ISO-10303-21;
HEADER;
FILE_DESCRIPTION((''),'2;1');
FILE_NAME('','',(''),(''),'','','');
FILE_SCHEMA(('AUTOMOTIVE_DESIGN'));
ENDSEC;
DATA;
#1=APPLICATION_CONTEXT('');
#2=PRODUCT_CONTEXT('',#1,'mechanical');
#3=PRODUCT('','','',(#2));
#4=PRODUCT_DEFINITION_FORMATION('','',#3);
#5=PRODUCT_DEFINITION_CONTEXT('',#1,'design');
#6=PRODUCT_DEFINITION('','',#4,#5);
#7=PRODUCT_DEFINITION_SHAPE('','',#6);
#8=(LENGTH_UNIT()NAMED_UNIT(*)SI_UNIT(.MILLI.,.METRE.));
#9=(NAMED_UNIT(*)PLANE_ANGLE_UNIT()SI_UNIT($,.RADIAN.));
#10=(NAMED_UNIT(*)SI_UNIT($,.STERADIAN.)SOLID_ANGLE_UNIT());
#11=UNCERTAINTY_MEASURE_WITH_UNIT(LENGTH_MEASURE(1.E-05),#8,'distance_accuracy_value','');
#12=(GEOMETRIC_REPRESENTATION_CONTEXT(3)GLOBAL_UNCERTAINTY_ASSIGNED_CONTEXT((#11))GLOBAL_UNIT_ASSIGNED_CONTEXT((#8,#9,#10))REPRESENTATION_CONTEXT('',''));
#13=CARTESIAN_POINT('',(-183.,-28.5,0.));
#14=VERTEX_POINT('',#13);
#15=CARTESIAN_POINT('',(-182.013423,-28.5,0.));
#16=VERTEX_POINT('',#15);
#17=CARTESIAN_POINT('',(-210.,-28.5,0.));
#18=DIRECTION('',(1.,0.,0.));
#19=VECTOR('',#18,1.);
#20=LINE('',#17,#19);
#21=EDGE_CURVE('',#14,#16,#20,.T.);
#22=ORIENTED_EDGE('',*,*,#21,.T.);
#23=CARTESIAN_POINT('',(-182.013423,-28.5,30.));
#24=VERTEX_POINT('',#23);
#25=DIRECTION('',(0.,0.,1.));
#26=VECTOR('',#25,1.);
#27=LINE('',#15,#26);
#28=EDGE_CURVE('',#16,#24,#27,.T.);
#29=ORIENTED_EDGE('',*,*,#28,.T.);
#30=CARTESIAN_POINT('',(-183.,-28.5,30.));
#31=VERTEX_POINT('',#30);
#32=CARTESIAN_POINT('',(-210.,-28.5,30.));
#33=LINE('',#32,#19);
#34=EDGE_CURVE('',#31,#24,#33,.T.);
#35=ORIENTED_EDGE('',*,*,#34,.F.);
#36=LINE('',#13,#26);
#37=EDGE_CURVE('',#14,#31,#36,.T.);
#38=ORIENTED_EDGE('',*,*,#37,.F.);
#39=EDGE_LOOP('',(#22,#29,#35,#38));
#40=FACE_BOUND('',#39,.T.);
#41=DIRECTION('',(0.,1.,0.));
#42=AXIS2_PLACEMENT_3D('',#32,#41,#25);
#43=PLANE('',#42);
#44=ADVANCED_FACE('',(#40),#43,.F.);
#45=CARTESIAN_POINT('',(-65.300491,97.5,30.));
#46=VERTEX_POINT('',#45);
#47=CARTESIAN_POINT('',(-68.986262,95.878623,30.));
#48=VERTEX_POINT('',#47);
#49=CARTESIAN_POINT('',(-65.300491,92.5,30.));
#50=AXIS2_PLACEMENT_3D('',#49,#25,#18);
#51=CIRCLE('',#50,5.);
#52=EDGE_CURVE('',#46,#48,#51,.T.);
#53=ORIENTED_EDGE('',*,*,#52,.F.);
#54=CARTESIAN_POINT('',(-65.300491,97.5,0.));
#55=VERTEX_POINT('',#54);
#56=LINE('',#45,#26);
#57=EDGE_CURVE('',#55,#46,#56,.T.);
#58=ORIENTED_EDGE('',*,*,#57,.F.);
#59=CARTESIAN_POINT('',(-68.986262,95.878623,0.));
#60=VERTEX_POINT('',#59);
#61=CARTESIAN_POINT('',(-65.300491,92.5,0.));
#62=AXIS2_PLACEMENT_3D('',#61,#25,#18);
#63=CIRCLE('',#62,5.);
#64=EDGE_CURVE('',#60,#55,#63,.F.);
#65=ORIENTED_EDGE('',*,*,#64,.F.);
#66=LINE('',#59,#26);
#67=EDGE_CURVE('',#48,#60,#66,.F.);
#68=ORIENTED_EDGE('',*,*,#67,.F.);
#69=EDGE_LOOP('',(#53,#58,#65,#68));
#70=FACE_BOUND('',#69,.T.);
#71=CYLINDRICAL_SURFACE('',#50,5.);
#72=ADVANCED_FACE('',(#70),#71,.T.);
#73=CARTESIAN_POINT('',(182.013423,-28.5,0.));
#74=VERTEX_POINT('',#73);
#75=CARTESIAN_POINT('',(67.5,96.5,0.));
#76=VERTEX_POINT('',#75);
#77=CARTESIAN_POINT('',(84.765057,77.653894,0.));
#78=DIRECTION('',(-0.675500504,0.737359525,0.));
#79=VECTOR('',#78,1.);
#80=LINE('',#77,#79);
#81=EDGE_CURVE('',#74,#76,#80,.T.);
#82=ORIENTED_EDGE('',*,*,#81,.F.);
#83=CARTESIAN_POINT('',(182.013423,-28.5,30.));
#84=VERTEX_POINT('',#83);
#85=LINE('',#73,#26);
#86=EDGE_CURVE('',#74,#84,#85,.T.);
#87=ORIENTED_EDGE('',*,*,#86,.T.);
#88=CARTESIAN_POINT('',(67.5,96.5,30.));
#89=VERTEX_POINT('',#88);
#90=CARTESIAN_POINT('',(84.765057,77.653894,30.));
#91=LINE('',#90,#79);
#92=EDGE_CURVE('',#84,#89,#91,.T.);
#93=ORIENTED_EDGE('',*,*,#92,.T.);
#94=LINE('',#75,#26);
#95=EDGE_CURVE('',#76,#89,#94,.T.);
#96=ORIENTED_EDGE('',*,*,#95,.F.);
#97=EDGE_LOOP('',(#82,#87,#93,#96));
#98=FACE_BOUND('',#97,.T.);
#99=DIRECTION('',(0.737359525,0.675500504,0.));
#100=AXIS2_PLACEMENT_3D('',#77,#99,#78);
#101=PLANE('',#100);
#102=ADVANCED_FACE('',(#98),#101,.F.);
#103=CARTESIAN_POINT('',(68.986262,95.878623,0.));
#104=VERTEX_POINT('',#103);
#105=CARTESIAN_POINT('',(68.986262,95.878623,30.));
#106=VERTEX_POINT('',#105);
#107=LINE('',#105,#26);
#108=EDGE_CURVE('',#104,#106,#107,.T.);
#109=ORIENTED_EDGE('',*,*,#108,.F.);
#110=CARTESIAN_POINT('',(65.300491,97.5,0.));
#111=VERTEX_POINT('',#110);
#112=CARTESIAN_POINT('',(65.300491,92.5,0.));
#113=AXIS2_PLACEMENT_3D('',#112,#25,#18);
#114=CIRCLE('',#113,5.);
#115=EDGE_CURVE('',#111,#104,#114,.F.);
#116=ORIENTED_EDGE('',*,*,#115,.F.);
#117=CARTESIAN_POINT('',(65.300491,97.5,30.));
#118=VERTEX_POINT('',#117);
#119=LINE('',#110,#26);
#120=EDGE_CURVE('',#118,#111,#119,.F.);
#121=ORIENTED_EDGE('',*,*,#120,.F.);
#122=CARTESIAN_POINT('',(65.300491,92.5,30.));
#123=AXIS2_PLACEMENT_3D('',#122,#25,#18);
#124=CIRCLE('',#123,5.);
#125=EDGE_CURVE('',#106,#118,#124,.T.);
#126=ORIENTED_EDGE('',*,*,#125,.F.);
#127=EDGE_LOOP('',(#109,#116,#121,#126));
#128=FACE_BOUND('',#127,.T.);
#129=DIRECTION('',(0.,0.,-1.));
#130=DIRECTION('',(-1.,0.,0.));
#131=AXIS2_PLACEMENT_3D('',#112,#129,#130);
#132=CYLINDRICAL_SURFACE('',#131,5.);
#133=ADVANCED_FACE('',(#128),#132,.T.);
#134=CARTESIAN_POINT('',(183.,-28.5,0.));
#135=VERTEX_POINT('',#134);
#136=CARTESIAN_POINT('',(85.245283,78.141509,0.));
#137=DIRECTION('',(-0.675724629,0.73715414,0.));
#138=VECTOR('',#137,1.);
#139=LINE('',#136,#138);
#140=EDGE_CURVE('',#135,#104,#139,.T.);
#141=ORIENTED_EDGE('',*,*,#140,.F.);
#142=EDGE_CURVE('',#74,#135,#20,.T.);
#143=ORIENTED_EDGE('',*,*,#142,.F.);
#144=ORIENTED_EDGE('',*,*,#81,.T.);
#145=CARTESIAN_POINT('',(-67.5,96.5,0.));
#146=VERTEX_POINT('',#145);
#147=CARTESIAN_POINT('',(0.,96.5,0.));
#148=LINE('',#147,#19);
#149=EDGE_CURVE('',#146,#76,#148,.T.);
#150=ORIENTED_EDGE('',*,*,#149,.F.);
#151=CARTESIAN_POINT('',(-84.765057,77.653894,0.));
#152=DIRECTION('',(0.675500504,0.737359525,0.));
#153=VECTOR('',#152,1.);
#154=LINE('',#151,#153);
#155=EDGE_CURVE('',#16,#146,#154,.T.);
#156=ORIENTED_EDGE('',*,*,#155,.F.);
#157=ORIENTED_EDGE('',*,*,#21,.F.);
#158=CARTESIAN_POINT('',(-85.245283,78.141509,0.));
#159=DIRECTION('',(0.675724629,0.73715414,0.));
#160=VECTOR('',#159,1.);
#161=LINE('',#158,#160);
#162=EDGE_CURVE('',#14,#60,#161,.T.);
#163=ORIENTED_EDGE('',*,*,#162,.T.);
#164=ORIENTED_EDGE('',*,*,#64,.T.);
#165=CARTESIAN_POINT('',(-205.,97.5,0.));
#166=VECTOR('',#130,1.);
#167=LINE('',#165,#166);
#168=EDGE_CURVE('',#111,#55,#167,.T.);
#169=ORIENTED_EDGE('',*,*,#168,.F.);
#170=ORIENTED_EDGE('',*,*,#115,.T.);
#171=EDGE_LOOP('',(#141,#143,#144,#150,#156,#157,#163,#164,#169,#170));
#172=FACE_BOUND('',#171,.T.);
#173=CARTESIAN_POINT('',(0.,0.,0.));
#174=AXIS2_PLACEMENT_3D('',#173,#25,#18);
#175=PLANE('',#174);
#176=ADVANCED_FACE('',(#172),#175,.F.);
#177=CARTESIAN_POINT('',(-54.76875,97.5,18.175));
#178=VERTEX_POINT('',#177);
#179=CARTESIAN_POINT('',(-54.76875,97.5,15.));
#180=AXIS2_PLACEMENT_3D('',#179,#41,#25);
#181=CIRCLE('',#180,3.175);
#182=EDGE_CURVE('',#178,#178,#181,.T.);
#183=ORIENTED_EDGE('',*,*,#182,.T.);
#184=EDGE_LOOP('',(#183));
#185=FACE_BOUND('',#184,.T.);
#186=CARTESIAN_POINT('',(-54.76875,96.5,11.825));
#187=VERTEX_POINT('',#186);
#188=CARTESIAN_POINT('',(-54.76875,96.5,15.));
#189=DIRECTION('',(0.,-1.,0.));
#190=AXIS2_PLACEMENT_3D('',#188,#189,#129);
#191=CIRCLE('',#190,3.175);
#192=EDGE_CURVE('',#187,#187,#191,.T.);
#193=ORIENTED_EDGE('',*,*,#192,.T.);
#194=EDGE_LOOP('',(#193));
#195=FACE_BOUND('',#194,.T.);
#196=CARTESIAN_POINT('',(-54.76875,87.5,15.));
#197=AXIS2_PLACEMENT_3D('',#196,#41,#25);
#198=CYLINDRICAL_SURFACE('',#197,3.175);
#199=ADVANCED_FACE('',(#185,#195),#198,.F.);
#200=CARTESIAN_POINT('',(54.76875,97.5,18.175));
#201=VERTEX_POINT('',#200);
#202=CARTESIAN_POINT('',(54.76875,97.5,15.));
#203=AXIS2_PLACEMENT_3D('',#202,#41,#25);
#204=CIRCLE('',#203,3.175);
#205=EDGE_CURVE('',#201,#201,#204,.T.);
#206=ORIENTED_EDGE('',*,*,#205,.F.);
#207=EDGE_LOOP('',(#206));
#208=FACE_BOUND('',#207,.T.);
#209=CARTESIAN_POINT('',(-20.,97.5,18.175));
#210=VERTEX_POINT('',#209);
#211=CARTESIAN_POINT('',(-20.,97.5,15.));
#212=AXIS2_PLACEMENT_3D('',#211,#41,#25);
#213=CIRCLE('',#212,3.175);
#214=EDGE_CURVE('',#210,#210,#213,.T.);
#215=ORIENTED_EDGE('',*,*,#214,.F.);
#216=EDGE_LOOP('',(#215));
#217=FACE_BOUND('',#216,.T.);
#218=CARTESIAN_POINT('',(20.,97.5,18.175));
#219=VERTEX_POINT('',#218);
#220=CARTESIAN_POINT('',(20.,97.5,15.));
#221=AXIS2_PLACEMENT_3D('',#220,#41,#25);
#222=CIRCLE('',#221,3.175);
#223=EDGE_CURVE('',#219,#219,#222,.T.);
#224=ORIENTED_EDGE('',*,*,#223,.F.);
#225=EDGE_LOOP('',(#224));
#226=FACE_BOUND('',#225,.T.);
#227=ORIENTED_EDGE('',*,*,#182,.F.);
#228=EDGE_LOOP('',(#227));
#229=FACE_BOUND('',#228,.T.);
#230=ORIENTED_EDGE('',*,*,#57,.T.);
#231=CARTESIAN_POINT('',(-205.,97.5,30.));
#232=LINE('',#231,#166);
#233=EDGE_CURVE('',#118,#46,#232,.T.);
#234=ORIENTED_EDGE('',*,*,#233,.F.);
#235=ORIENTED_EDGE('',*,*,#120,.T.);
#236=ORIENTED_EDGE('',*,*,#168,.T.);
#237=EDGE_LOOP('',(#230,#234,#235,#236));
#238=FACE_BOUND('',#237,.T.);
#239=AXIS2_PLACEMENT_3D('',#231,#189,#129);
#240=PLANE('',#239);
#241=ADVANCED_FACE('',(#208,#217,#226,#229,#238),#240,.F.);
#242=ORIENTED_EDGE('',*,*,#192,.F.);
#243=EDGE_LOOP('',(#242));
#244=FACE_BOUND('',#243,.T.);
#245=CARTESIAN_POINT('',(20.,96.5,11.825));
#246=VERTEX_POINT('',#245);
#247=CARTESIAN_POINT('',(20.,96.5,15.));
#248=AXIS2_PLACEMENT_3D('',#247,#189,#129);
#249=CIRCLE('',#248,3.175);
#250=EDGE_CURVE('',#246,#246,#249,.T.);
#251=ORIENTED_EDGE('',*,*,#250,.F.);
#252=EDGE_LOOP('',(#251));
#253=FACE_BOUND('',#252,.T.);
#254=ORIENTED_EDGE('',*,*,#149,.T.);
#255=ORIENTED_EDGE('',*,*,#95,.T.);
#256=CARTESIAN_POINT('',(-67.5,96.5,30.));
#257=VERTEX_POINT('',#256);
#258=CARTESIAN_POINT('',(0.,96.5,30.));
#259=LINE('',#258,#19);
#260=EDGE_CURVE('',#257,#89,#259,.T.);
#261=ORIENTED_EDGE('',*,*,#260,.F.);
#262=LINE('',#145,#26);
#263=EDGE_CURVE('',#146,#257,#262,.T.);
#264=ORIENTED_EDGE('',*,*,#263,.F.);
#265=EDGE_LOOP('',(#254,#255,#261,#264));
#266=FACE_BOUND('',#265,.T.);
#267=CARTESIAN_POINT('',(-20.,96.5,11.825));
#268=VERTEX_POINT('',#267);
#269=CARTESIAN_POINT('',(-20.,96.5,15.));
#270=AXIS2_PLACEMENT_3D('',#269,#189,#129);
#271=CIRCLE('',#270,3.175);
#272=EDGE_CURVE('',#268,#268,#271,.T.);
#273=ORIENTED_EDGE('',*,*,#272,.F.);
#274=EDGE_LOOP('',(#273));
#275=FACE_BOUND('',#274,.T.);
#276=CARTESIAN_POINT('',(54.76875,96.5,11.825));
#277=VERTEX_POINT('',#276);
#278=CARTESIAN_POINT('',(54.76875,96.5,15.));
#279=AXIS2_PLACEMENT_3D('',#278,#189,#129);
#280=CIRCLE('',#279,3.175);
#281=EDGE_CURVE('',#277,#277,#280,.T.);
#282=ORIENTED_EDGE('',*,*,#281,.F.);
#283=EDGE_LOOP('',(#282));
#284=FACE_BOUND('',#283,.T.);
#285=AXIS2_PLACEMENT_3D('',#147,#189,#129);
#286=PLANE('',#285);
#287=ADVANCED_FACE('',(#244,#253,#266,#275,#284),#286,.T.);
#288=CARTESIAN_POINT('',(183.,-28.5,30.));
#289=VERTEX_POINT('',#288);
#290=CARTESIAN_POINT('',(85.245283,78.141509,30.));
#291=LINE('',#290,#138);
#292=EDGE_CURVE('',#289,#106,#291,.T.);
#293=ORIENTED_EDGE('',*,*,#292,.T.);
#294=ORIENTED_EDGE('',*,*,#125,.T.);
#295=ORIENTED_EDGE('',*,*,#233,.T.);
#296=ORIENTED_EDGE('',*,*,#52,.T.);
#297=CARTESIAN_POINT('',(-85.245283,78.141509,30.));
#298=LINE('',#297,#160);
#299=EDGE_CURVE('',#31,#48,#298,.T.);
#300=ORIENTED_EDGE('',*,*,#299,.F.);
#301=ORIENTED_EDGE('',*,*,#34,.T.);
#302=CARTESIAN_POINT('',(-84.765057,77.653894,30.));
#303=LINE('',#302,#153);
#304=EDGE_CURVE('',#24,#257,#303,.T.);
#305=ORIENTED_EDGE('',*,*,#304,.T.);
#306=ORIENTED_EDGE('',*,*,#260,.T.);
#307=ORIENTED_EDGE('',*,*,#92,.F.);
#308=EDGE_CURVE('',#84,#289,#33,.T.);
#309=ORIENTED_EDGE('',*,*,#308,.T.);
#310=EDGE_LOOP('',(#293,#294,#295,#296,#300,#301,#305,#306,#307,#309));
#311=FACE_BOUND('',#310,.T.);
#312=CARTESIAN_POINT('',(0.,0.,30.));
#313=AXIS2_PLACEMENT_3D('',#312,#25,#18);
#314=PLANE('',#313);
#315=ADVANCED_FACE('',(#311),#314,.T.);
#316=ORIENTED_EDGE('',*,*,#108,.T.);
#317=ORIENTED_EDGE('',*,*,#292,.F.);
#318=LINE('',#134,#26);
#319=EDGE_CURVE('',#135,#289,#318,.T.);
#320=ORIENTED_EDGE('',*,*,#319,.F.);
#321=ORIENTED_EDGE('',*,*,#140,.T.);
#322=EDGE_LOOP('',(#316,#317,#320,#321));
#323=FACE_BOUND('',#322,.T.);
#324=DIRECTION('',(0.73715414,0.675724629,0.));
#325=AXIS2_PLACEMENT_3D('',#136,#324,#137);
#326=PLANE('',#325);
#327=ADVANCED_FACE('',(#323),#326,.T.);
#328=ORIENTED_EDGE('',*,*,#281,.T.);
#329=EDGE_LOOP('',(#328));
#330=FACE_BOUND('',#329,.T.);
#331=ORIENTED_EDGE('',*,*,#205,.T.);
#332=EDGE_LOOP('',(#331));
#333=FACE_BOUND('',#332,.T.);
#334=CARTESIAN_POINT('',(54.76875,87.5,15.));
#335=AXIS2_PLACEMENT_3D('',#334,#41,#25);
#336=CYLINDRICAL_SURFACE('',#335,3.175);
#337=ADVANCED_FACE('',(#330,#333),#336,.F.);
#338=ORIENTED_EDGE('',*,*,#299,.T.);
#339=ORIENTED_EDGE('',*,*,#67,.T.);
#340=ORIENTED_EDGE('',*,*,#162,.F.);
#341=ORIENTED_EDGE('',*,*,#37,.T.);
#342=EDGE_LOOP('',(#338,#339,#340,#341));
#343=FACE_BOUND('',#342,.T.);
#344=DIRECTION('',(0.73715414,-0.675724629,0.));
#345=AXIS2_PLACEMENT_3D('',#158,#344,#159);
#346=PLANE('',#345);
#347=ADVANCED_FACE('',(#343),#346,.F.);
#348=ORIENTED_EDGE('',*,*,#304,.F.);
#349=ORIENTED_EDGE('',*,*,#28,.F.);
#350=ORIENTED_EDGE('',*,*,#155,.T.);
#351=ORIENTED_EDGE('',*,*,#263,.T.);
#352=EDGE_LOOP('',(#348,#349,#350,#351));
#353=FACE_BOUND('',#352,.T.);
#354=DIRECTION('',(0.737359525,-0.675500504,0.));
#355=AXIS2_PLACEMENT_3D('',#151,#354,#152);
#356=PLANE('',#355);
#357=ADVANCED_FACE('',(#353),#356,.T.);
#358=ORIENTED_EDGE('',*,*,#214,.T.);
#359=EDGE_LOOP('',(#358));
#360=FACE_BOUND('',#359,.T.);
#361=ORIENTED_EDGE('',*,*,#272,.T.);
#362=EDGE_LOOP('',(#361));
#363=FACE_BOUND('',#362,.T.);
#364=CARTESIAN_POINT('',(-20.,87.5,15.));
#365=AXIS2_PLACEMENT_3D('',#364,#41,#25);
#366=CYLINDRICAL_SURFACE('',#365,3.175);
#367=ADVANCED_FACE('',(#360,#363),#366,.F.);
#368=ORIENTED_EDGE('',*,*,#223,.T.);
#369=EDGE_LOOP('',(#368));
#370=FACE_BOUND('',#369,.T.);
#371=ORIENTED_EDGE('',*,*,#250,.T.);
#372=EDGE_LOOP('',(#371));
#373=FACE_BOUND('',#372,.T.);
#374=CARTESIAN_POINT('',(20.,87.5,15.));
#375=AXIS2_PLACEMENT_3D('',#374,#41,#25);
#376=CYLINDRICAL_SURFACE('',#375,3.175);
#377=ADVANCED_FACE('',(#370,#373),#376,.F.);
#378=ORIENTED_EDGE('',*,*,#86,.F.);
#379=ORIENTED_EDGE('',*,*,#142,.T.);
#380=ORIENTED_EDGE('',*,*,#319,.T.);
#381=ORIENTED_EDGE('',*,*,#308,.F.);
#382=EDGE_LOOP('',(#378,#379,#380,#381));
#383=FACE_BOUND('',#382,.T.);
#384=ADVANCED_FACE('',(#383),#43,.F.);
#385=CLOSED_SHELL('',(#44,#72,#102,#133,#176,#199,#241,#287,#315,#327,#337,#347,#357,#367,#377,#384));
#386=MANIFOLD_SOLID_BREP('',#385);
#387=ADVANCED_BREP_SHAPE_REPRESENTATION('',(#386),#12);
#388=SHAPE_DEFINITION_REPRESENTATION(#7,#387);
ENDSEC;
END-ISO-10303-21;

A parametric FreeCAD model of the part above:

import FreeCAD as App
import Part
import Sketcher
Q = App.Units.Quantity


def edges_at(feature, points):
    """Names of the edges that pass closest to the given points."""
    edges = feature.Shape.Edges
    near = lambda p: min(range(len(edges)), key=lambda i: edges[i].distToShape(Part.Vertex(*p))[0])
    return sorted({f"Edge{near(p) + 1}" for p in points})

doc = App.newDocument("Part")
body = doc.addObject("PartDesign::Body", "Body")

sketch1 = body.newObject("Sketcher::SketchObject", "Sketch")
sketch1.AttachmentSupport = (doc.getObject("XY_Plane"), [""])
sketch1.MapMode = "FlatFace"
sketch1.addGeometry([
    Part.LineSegment(App.Vector(-205, 98, 0), App.Vector(-205, -98, 0)),
    Part.LineSegment(App.Vector(-205, -98, 0), App.Vector(205, -98, 0)),
    Part.LineSegment(App.Vector(205, -98, 0), App.Vector(205, 98, 0)),
    Part.LineSegment(App.Vector(205, 98, 0), App.Vector(-205, 98, 0)),
], False)
sketch1.addConstraint([
    Sketcher.Constraint("Coincident", 0, 2, 1, 1),
    Sketcher.Constraint("Coincident", 1, 2, 2, 1),
    Sketcher.Constraint("Coincident", 2, 2, 3, 1),
    Sketcher.Constraint("Coincident", 3, 2, 0, 1),
    Sketcher.Constraint("Vertical", 0),
    Sketcher.Constraint("Horizontal", 1),
    Sketcher.Constraint("Vertical", 2),
    Sketcher.Constraint("Horizontal", 3),
    Sketcher.Constraint("Symmetric", 0, 2, 2, 2, -1, 1),
    Sketcher.Constraint("DistanceX", 1, 1, 1, 2, Q("410 mm")),
    Sketcher.Constraint("DistanceY", 0, 2, 0, 1, Q("195 mm")),
])
pad1 = body.newObject("PartDesign::Pad", "Pad")
pad1.Profile = sketch1
pad1.Length = 30

sketch2 = body.newObject("Sketcher::SketchObject", "Sketch001")
sketch2.AttachmentSupport = (doc.getObject("XY_Plane"), [""])
sketch2.MapMode = "FlatFace"
sketch2.AttachmentOffset = App.Placement(App.Vector(0, 0, 30), App.Rotation())
sketch2.addGeometry([
    Part.LineSegment(App.Vector(-205, 98, 0), App.Vector(-205, -52, 0)),
    Part.LineSegment(App.Vector(-205, -52, 0), App.Vector(-68, 98, 0)),
    Part.LineSegment(App.Vector(-68, 98, 0), App.Vector(-205, 98, 0)),
    Part.LineSegment(App.Vector(205, 98, 0), App.Vector(68, 98, 0)),
    Part.LineSegment(App.Vector(68, 98, 0), App.Vector(205, -52, 0)),
    Part.LineSegment(App.Vector(205, -52, 0), App.Vector(205, 98, 0)),
], False)
sketch2.addConstraint([
    Sketcher.Constraint("Coincident", 0, 2, 1, 1),
    Sketcher.Constraint("Coincident", 1, 2, 2, 1),
    Sketcher.Constraint("Coincident", 2, 2, 0, 1),
    Sketcher.Constraint("Coincident", 3, 2, 4, 1),
    Sketcher.Constraint("Coincident", 4, 2, 5, 1),
    Sketcher.Constraint("Coincident", 5, 2, 3, 1),
    Sketcher.Constraint("Vertical", 0),
    Sketcher.Constraint("Horizontal", 2),
    Sketcher.Constraint("Horizontal", 3),
    Sketcher.Constraint("Vertical", 5),
    Sketcher.Constraint("Symmetric", 1, 2, 3, 2, -2),
    Sketcher.Constraint("Symmetric", 0, 2, 4, 2, -2),
    Sketcher.Constraint("DistanceY", 0, 2, 0, 1, Q("150 mm")),
    Sketcher.Constraint("DistanceX", 2, 2, 2, 1, Q("137.5 mm")),
    Sketcher.Constraint("DistanceX", 0, 2, -1, 1, Q("205 mm")),
    Sketcher.Constraint("DistanceY", 0, 2, -1, 1, Q("52.5 mm")),
])
pocket1 = body.newObject("PartDesign::Pocket", "Pocket")
pocket1.Profile = sketch2
pocket1.Length = 30

sketch3 = body.newObject("Sketcher::SketchObject", "Sketch002")
sketch3.AttachmentSupport = (doc.getObject("XY_Plane"), [""])
sketch3.MapMode = "FlatFace"
sketch3.AttachmentOffset = App.Placement(App.Vector(0, 0, 30), App.Rotation())
sketch3.addGeometry([
    Part.LineSegment(App.Vector(-68, 96, 0), App.Vector(-204, -52, 0)),
    Part.LineSegment(App.Vector(-204, -52, 0), App.Vector(-204, -98, 0)),
    Part.LineSegment(App.Vector(-204, -98, 0), App.Vector(204, -98, 0)),
    Part.LineSegment(App.Vector(204, -98, 0), App.Vector(204, -52, 0)),
    Part.LineSegment(App.Vector(204, -52, 0), App.Vector(68, 96, 0)),
    Part.LineSegment(App.Vector(68, 96, 0), App.Vector(-68, 96, 0)),
], False)
sketch3.addConstraint([
    Sketcher.Constraint("Coincident", 0, 2, 1, 1),
    Sketcher.Constraint("Coincident", 1, 2, 2, 1),
    Sketcher.Constraint("Coincident", 2, 2, 3, 1),
    Sketcher.Constraint("Coincident", 3, 2, 4, 1),
    Sketcher.Constraint("Coincident", 4, 2, 5, 1),
    Sketcher.Constraint("Coincident", 5, 2, 0, 1),
    Sketcher.Constraint("Vertical", 1),
    Sketcher.Constraint("Horizontal", 2),
    Sketcher.Constraint("Vertical", 3),
    Sketcher.Constraint("Horizontal", 5),
    Sketcher.Constraint("Symmetric", 0, 2, 3, 2, -2),
    Sketcher.Constraint("Equal", 0, 4),
    Sketcher.Constraint("DistanceX", 2, 1, 2, 2, Q("408 mm")),
    Sketcher.Constraint("DistanceX", 5, 2, 5, 1, Q("135 mm")),
    Sketcher.Constraint("DistanceY", 1, 2, 1, 1, Q("45 mm")),
    Sketcher.Constraint("DistanceY", 3, 2, 4, 2, Q("149 mm")),
    Sketcher.Constraint("DistanceY", 0, 2, -1, 1, Q("52.5 mm")),
])
pocket2 = body.newObject("PartDesign::Pocket", "Pocket001")
pocket2.Profile = sketch3
pocket2.Length = 30
doc.recompute()

fillet = body.newObject("PartDesign::Fillet", "Fillet")
fillet.Base = (pocket2, edges_at(pocket2, [(-205, -52.5, 15)]))
fillet.Radius = 5
doc.recompute()

fillet2 = body.newObject("PartDesign::Fillet", "Fillet001")
fillet2.Base = (fillet, edges_at(fillet, [(-67.5, 97.5, 15)]))
fillet2.Radius = 5
doc.recompute()

fillet3 = body.newObject("PartDesign::Fillet", "Fillet002")
fillet3.Base = (fillet2, edges_at(fillet2, [(67.5, 97.5, 15)]))
fillet3.Radius = 5
doc.recompute()

fillet4 = body.newObject("PartDesign::Fillet", "Fillet003")
fillet4.Base = (fillet3, edges_at(fillet3, [(205, -52.5, 15)]))
fillet4.Radius = 5

sketch4 = body.newObject("Sketcher::SketchObject", "Sketch003")
sketch4.AttachmentSupport = (doc.getObject("YZ_Plane"), [""])
sketch4.MapMode = "FlatFace"
sketch4.AttachmentOffset = App.Placement(App.Vector(0, 0, 205), App.Rotation())
sketch4.addGeometry(Part.Circle(App.Vector(-76, 15, 0), App.Vector(0, 0, 1), 1.6), False)
sketch4.addConstraint([
    Sketcher.Constraint("Diameter", 0, Q("3.3 mm")),
    Sketcher.Constraint("DistanceY", -1, 1, 0, 3, Q("15 mm")),
    Sketcher.Constraint("DistanceX", 0, 3, -1, 1, Q("75.972459 mm")),
])
pocket3 = body.newObject("PartDesign::Pocket", "Pocket002")
pocket3.Profile = sketch4
pocket3.Type = "ThroughAll"

sketch5 = body.newObject("Sketcher::SketchObject", "Sketch004")
sketch5.AttachmentSupport = (doc.getObject("XZ_Plane"), [""])
sketch5.MapMode = "FlatFace"
sketch5.AttachmentOffset = App.Placement(App.Vector(0, 0, -97.5), App.Rotation())
sketch5.addGeometry([
    Part.Circle(App.Vector(-20, 15, 0), App.Vector(0, 0, 1), 3.2),
    Part.Circle(App.Vector(20, 15, 0), App.Vector(0, 0, 1), 3.2),
    Part.Circle(App.Vector(54.8, 15, 0), App.Vector(0, 0, 1), 3.2),
    Part.Circle(App.Vector(-54.8, 15, 0), App.Vector(0, 0, 1), 3.2),
], False)
sketch5.addConstraint([
    Sketcher.Constraint("Equal", 0, 1),
    Sketcher.Constraint("Equal", 1, 2),
    Sketcher.Constraint("Equal", 2, 3),
    Sketcher.Constraint("Symmetric", 0, 3, 1, 3, -2),
    Sketcher.Constraint("Symmetric", 2, 3, 3, 3, -2),
    Sketcher.Constraint("Horizontal", 1, 3, 2, 3),
    Sketcher.Constraint("Diameter", 0, Q("6.35 mm")),
    Sketcher.Constraint("DistanceX", 0, 3, -1, 1, Q("20 mm")),
    Sketcher.Constraint("DistanceY", -1, 1, 0, 3, Q("15 mm")),
    Sketcher.Constraint("DistanceX", 3, 3, 2, 3, Q("109.5375 mm")),
])
pocket4 = body.newObject("PartDesign::Pocket", "Pocket003")
pocket4.Profile = sketch5
pocket4.Length = 10
pocket4.Reversed = True

sketch6 = body.newObject("Sketcher::SketchObject", "Sketch005")
sketch6.AttachmentSupport = (doc.getObject("YZ_Plane"), [""])
sketch6.MapMode = "FlatFace"
sketch6.AttachmentOffset = App.Placement(App.Vector(0, 0, 210), App.Rotation())
sketch6.addGeometry([
    Part.LineSegment(App.Vector(-28, 30, 0), App.Vector(-98, 30, 0)),
    Part.LineSegment(App.Vector(-98, 30, 0), App.Vector(-98, 0, 0)),
    Part.LineSegment(App.Vector(-98, 0, 0), App.Vector(-28, 0, 0)),
    Part.LineSegment(App.Vector(-28, 0, 0), App.Vector(-28, 30, 0)),
], False)
sketch6.addConstraint([
    Sketcher.Constraint("Coincident", 0, 2, 1, 1),
    Sketcher.Constraint("Coincident", 1, 2, 2, 1),
    Sketcher.Constraint("Coincident", 2, 2, 3, 1),
    Sketcher.Constraint("Coincident", 3, 2, 0, 1),
    Sketcher.Constraint("Horizontal", 0),
    Sketcher.Constraint("Vertical", 1),
    Sketcher.Constraint("Horizontal", 2),
    Sketcher.Constraint("Vertical", 3),
    Sketcher.Constraint("PointOnObject", 1, 2, -1),
    Sketcher.Constraint("DistanceX", 0, 2, 0, 1, Q("69 mm")),
    Sketcher.Constraint("DistanceY", 1, 2, 1, 1, Q("30 mm")),
    Sketcher.Constraint("DistanceX", 0, 2, -1, 1, Q("97.5 mm")),
])
pocket5 = body.newObject("PartDesign::Pocket", "Pocket004")
pocket5.Profile = sketch6
pocket5.Length = 420

doc.recompute()
